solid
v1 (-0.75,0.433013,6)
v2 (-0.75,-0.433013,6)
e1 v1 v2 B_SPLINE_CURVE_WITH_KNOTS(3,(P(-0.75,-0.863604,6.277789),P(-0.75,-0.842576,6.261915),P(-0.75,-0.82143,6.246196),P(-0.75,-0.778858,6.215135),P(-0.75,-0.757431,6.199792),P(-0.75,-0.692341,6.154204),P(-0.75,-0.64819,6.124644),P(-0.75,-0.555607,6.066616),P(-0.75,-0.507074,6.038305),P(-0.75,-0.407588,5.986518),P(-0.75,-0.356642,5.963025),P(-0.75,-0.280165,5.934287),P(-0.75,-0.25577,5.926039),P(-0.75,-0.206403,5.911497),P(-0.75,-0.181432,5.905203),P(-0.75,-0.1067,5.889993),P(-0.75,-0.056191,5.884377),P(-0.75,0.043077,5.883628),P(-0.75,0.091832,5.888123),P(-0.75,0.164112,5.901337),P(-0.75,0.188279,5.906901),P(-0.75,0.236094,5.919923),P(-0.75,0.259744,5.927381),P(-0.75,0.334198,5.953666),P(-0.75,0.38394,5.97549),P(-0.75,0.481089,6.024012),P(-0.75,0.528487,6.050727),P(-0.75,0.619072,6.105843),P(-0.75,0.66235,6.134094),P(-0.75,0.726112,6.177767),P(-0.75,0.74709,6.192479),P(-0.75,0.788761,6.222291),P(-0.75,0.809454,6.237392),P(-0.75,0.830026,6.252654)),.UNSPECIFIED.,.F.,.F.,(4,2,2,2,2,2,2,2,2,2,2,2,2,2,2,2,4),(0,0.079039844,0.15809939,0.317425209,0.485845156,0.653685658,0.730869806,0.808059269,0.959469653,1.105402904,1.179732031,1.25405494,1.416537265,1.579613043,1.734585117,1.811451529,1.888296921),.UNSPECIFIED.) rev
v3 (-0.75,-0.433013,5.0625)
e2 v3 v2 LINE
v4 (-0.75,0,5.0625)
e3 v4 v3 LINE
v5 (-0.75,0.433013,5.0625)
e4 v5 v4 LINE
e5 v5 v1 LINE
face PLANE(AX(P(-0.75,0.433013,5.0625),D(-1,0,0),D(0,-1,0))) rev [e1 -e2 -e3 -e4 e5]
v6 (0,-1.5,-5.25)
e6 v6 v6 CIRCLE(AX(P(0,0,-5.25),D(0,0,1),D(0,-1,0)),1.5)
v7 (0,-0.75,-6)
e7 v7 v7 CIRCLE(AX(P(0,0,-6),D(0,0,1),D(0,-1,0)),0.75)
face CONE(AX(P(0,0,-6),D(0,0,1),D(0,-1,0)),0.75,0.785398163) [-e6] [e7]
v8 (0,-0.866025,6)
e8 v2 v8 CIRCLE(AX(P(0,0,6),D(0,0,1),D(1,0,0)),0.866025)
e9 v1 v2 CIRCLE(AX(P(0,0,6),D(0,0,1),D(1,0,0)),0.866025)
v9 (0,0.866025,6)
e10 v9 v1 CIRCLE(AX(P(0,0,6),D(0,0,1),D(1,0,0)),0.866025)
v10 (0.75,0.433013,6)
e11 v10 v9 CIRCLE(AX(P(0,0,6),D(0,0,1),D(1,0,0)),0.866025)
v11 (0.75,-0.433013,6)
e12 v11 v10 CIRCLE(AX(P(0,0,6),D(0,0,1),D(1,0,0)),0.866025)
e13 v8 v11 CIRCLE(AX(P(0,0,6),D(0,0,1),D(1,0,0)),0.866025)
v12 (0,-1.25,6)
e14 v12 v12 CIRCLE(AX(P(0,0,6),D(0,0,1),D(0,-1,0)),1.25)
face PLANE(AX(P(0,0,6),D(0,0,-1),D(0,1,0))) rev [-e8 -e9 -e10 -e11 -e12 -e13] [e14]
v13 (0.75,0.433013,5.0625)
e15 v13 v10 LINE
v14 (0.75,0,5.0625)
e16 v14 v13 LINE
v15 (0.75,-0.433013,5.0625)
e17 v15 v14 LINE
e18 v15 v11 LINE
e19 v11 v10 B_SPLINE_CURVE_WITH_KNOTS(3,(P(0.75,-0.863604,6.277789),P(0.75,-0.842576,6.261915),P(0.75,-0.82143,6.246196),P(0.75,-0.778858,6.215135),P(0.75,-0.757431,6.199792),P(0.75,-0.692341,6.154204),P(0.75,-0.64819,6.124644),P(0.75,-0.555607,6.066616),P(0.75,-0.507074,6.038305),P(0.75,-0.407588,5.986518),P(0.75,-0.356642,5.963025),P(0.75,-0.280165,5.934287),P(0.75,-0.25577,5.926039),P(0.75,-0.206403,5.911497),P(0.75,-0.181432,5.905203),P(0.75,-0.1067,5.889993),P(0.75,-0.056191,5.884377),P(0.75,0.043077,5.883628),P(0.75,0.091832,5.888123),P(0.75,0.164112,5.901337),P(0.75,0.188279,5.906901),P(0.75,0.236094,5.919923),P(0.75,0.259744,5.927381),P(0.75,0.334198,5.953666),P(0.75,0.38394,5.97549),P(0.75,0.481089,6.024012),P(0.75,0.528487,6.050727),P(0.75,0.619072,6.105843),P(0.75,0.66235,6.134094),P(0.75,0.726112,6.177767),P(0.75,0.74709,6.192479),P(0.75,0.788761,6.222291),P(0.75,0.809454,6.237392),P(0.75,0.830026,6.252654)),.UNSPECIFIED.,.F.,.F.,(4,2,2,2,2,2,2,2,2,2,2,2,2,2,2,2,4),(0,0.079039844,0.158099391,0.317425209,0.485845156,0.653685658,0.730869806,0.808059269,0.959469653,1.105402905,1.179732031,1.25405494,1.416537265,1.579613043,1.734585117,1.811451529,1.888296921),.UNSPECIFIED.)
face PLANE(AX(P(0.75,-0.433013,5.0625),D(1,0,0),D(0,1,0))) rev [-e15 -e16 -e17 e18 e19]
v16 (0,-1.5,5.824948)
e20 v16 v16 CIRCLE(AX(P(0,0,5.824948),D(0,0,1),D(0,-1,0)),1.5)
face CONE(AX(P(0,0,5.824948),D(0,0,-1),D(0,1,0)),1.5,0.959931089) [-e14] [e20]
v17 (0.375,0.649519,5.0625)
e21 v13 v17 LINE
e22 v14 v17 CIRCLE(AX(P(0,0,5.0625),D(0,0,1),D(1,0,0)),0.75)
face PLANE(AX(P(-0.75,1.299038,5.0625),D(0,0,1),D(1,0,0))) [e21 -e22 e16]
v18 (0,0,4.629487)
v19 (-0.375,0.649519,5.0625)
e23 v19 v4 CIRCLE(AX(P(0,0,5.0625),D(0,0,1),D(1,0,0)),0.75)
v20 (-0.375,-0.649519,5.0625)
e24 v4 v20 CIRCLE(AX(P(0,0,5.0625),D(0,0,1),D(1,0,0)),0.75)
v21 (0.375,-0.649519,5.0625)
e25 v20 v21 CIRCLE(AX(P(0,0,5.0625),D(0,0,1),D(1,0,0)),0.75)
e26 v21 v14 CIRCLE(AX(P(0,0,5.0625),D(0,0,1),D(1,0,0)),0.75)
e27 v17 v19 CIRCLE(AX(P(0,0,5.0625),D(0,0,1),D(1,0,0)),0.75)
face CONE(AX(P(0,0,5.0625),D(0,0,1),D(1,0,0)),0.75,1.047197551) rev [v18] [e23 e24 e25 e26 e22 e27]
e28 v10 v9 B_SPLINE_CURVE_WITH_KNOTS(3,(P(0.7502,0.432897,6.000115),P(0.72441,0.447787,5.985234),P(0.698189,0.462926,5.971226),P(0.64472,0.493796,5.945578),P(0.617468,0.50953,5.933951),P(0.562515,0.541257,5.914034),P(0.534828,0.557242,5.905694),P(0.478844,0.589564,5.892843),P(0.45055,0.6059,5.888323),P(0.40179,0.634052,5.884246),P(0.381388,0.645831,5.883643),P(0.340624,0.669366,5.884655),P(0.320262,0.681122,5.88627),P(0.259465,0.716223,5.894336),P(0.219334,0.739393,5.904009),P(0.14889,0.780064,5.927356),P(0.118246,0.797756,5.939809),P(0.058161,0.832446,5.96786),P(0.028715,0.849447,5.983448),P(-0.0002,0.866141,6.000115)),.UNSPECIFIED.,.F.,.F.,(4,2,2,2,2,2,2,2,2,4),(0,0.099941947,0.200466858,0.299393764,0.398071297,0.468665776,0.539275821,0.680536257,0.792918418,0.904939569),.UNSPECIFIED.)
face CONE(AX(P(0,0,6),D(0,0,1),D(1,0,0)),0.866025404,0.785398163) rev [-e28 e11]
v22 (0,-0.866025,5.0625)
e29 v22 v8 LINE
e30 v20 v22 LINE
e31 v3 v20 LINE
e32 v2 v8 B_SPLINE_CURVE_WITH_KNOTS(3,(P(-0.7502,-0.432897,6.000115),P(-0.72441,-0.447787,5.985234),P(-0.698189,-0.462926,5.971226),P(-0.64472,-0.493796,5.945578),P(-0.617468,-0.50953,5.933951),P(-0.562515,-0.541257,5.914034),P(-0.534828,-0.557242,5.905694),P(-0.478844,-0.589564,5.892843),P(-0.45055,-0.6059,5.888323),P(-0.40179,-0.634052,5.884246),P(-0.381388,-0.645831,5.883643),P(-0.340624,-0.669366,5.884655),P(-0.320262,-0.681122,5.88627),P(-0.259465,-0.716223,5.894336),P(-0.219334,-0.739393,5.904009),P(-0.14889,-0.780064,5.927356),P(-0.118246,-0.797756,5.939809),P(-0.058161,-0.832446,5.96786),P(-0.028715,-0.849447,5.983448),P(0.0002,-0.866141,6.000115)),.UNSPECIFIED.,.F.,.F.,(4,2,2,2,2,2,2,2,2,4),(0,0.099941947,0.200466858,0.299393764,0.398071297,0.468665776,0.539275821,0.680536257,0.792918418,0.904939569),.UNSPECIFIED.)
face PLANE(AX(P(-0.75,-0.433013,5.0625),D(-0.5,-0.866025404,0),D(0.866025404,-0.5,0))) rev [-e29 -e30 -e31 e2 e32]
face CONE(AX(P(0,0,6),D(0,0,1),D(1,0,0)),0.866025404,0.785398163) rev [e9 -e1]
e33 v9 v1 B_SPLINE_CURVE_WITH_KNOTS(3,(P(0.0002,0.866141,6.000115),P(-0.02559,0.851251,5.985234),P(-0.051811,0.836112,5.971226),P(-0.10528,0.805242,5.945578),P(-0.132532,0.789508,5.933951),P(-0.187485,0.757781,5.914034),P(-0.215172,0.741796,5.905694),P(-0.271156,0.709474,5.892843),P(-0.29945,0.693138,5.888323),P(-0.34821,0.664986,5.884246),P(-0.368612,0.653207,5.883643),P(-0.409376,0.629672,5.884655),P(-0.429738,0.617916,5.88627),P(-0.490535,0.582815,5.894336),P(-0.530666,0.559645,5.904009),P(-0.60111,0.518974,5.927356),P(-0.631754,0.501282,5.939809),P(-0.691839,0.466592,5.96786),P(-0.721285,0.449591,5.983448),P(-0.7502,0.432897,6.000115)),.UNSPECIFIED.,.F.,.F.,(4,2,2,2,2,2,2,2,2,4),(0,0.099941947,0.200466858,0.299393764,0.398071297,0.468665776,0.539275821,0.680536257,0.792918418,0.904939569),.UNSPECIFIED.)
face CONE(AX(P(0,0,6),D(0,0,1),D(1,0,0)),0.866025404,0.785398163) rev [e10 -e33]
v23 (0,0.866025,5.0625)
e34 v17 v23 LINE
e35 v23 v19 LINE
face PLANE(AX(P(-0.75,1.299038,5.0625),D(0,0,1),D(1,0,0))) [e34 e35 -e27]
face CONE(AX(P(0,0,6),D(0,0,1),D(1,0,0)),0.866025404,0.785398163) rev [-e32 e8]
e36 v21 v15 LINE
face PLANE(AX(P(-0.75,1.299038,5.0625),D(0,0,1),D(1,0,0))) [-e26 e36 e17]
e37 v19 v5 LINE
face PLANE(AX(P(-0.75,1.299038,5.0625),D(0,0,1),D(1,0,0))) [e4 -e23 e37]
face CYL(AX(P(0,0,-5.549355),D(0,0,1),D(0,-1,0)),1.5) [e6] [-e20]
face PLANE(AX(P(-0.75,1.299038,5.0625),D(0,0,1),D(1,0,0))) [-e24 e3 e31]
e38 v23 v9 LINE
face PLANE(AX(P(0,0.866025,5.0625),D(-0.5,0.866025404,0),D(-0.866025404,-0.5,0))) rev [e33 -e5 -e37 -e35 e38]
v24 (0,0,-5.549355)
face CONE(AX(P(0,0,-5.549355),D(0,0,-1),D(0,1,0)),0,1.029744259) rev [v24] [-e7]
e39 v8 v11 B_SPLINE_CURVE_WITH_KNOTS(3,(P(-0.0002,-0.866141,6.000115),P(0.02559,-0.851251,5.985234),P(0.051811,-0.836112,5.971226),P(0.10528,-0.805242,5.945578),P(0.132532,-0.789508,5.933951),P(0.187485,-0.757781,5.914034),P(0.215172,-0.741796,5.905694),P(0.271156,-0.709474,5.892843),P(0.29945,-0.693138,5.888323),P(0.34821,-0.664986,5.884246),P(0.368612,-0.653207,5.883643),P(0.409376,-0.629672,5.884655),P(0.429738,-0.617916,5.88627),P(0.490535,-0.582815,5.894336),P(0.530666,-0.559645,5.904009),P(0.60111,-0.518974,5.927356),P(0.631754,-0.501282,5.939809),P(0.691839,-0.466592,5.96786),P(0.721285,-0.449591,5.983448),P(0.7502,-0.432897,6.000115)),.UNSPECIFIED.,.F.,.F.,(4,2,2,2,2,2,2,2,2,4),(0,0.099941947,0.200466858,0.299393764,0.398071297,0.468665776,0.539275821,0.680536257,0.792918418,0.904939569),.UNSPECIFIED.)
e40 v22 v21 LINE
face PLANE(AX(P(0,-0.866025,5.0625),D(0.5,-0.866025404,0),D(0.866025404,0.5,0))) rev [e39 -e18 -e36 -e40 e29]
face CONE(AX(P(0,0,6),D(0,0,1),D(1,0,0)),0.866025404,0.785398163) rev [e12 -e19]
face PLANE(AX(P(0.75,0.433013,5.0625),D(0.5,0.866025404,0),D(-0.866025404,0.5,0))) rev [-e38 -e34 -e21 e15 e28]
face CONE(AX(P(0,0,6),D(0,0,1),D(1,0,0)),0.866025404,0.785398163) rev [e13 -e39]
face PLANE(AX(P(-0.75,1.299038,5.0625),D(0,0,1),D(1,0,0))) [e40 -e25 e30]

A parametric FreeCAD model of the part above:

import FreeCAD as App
import Part
import Sketcher
from FreeCAD import Vector
Q = App.Units.Quantity

doc = App.newDocument("Part")
body = doc.addObject("PartDesign::Body", "Body")

sketch1 = doc.addObject("Sketcher::SketchObject", "Sketch")
body.addObject(sketch1)
sketch1.AttachmentSupport = (doc.YZ_Plane, [""])
sketch1.MapMode = "FlatFace"
sketch1.addGeometry([
    Part.LineSegment(Vector(1.25, 6, 0), Vector(0, 6, 0)),
    Part.LineSegment(Vector(0, 6, 0), Vector(0, -5.549355, 0)),
    Part.LineSegment(Vector(0, -5.549355, 0), Vector(0.75, -6, 0)),
    Part.LineSegment(Vector(0.75, -6, 0), Vector(1.5, -5.25, 0)),
    Part.LineSegment(Vector(1.5, -5.25, 0), Vector(1.5, 5.824948, 0)),
    Part.LineSegment(Vector(1.5, 5.824948, 0), Vector(1.25, 6, 0)),
], False)
sketch1.addConstraint([
    Sketcher.Constraint("Coincident", 0, 2, 1, 1),
    Sketcher.Constraint("Coincident", 1, 2, 2, 1),
    Sketcher.Constraint("Coincident", 2, 2, 3, 1),
    Sketcher.Constraint("Coincident", 3, 2, 4, 1),
    Sketcher.Constraint("Coincident", 4, 2, 5, 1),
    Sketcher.Constraint("Coincident", 5, 2, 0, 1),
    Sketcher.Constraint("Horizontal", 0),
    Sketcher.Constraint("Vertical", 1),
    Sketcher.Constraint("Vertical", 4),
    Sketcher.Constraint("PointOnObject", 0, 2, -2),
    Sketcher.Constraint("Angle", 2, Q("-31 deg")),
    Sketcher.Constraint("Angle", 3, Q("45 deg")),
    Sketcher.Constraint("Angle", 5, Q("145 deg")),
    Sketcher.Constraint("DistanceY", -1, 1, 0, 2, 6.0),
    Sketcher.Constraint("DistanceY", 2, 2, -1, 1, 6.0),
    Sketcher.Constraint("DistanceX", 0, 2, 0, 1, 1.25),
    Sketcher.Constraint("DistanceX", -1, 1, 3, 2, 1.5),
    Sketcher.Constraint("DistanceX", 2, 2, 5, 2, 0.5),
])
revolution = doc.addObject("PartDesign::Revolution", "Revolution")
body.addObject(revolution)
revolution.Profile = sketch1
revolution.ReferenceAxis = (sketch1, ["V_Axis"])
revolution.Angle = 360

sketch2 = doc.addObject("Sketcher::SketchObject", "Sketch001")
body.addObject(sketch2)
sketch2.AttachmentSupport = (doc.XY_Plane, [""])
sketch2.MapMode = "FlatFace"
sketch2.AttachmentOffset = App.Placement(Vector(0, 0, 6), App.Rotation())
sketch2.addGeometry([
    Part.LineSegment(Vector(0, 0.866025, 0), Vector(-0.75, 0.433013, 0)),
    Part.LineSegment(Vector(-0.75, 0.433013, 0), Vector(-0.75, -0.433013, 0)),
    Part.LineSegment(Vector(-0.75, -0.433013, 0), Vector(0, -0.866025, 0)),
    Part.LineSegment(Vector(0, -0.866025, 0), Vector(0.75, -0.433013, 0)),
    Part.LineSegment(Vector(0.75, -0.433013, 0), Vector(0.75, 0.433013, 0)),
    Part.LineSegment(Vector(0.75, 0.433013, 0), Vector(0, 0.866025, 0)),
], False)
sketch2.addConstraint([
    Sketcher.Constraint("Coincident", 0, 2, 1, 1),
    Sketcher.Constraint("Coincident", 1, 2, 2, 1),
    Sketcher.Constraint("Coincident", 2, 2, 3, 1),
    Sketcher.Constraint("Coincident", 3, 2, 4, 1),
    Sketcher.Constraint("Coincident", 4, 2, 5, 1),
    Sketcher.Constraint("Coincident", 5, 2, 0, 1),
    Sketcher.Constraint("Vertical", 1),
    Sketcher.Constraint("Vertical", 4),
    Sketcher.Constraint("Symmetric", 0, 2, 3, 2, -1, 1),
    Sketcher.Constraint("Symmetric", 2, 2, 5, 2, -1, 1),
    Sketcher.Constraint("PointOnObject", 2, 2, -2),
    Sketcher.Constraint("Parallel", 2, 5),
    Sketcher.Constraint("Horizontal", 1, 2, 3, 2),
    Sketcher.Constraint("Angle", 0, Q("-150 deg")),
    Sketcher.Constraint("DistanceX", 1, 2, 3, 2, 1.5),
    Sketcher.Constraint("DistanceY", 1, 2, 1, 1, 0.866025),
])
pocket1 = doc.addObject("PartDesign::Pocket", "Pocket")
body.addObject(pocket1)
pocket1.Profile = sketch2
pocket1.Length = 0.9375

sketch3 = doc.addObject("Sketcher::SketchObject", "Sketch002")
body.addObject(sketch3)
sketch3.AttachmentSupport = (doc.YZ_Plane, [""])
sketch3.MapMode = "FlatFace"
sketch3.addGeometry([
    Part.LineSegment(Vector(0, 6, 0), Vector(-0.866025, 6, 0)),
    Part.LineSegment(Vector(-0.866025, 6, 0), Vector(0, 5.133975, 0)),
    Part.LineSegment(Vector(0, 5.133975, 0), Vector(0, 6, 0)),
], False)
sketch3.addConstraint([
    Sketcher.Constraint("Coincident", 0, 2, 1, 1),
    Sketcher.Constraint("Coincident", 1, 2, 2, 1),
    Sketcher.Constraint("Coincident", 2, 2, 0, 1),
    Sketcher.Constraint("Horizontal", 0),
    Sketcher.Constraint("Vertical", 2),
    Sketcher.Constraint("PointOnObject", 1, 2, -2),
    Sketcher.Constraint("Equal", 0, 2),
    Sketcher.Constraint("DistanceY", -1, 1, 0, 2, 6.0),
    Sketcher.Constraint("DistanceX", 0, 2, 0, 1, 0.866025),
])
groove = doc.addObject("PartDesign::Groove", "Groove")
body.addObject(groove)
groove.Profile = sketch3
groove.ReferenceAxis = (sketch3, ["V_Axis"])
groove.Angle = 360

sketch4 = doc.addObject("Sketcher::SketchObject", "Sketch003")
body.addObject(sketch4)
sketch4.AttachmentSupport = (doc.YZ_Plane, [""])
sketch4.MapMode = "FlatFace"
sketch4.addGeometry([
    Part.LineSegment(Vector(0, 5.0625, 0), Vector(-0.75, 5.0625, 0)),
    Part.LineSegment(Vector(-0.75, 5.0625, 0), Vector(0, 4.629487, 0)),
    Part.LineSegment(Vector(0, 4.629487, 0), Vector(0, 5.0625, 0)),
], False)
sketch4.addConstraint([
    Sketcher.Constraint("Coincident", 0, 2, 1, 1),
    Sketcher.Constraint("Coincident", 1, 2, 2, 1),
    Sketcher.Constraint("Coincident", 2, 2, 0, 1),
    Sketcher.Constraint("Horizontal", 0),
    Sketcher.Constraint("Vertical", 2),
    Sketcher.Constraint("PointOnObject", 1, 2, -2),
    Sketcher.Constraint("Angle", 1, Q("-30 deg")),
    Sketcher.Constraint("DistanceX", 0, 2, 0, 1, 0.75),
    Sketcher.Constraint("DistanceY", -1, 1, 0, 2, 5.0625),
])
groove2 = doc.addObject("PartDesign::Groove", "Groove001")
body.addObject(groove2)
groove2.Profile = sketch4
groove2.ReferenceAxis = (sketch4, ["V_Axis"])
groove2.Angle = 360

doc.recompute()
